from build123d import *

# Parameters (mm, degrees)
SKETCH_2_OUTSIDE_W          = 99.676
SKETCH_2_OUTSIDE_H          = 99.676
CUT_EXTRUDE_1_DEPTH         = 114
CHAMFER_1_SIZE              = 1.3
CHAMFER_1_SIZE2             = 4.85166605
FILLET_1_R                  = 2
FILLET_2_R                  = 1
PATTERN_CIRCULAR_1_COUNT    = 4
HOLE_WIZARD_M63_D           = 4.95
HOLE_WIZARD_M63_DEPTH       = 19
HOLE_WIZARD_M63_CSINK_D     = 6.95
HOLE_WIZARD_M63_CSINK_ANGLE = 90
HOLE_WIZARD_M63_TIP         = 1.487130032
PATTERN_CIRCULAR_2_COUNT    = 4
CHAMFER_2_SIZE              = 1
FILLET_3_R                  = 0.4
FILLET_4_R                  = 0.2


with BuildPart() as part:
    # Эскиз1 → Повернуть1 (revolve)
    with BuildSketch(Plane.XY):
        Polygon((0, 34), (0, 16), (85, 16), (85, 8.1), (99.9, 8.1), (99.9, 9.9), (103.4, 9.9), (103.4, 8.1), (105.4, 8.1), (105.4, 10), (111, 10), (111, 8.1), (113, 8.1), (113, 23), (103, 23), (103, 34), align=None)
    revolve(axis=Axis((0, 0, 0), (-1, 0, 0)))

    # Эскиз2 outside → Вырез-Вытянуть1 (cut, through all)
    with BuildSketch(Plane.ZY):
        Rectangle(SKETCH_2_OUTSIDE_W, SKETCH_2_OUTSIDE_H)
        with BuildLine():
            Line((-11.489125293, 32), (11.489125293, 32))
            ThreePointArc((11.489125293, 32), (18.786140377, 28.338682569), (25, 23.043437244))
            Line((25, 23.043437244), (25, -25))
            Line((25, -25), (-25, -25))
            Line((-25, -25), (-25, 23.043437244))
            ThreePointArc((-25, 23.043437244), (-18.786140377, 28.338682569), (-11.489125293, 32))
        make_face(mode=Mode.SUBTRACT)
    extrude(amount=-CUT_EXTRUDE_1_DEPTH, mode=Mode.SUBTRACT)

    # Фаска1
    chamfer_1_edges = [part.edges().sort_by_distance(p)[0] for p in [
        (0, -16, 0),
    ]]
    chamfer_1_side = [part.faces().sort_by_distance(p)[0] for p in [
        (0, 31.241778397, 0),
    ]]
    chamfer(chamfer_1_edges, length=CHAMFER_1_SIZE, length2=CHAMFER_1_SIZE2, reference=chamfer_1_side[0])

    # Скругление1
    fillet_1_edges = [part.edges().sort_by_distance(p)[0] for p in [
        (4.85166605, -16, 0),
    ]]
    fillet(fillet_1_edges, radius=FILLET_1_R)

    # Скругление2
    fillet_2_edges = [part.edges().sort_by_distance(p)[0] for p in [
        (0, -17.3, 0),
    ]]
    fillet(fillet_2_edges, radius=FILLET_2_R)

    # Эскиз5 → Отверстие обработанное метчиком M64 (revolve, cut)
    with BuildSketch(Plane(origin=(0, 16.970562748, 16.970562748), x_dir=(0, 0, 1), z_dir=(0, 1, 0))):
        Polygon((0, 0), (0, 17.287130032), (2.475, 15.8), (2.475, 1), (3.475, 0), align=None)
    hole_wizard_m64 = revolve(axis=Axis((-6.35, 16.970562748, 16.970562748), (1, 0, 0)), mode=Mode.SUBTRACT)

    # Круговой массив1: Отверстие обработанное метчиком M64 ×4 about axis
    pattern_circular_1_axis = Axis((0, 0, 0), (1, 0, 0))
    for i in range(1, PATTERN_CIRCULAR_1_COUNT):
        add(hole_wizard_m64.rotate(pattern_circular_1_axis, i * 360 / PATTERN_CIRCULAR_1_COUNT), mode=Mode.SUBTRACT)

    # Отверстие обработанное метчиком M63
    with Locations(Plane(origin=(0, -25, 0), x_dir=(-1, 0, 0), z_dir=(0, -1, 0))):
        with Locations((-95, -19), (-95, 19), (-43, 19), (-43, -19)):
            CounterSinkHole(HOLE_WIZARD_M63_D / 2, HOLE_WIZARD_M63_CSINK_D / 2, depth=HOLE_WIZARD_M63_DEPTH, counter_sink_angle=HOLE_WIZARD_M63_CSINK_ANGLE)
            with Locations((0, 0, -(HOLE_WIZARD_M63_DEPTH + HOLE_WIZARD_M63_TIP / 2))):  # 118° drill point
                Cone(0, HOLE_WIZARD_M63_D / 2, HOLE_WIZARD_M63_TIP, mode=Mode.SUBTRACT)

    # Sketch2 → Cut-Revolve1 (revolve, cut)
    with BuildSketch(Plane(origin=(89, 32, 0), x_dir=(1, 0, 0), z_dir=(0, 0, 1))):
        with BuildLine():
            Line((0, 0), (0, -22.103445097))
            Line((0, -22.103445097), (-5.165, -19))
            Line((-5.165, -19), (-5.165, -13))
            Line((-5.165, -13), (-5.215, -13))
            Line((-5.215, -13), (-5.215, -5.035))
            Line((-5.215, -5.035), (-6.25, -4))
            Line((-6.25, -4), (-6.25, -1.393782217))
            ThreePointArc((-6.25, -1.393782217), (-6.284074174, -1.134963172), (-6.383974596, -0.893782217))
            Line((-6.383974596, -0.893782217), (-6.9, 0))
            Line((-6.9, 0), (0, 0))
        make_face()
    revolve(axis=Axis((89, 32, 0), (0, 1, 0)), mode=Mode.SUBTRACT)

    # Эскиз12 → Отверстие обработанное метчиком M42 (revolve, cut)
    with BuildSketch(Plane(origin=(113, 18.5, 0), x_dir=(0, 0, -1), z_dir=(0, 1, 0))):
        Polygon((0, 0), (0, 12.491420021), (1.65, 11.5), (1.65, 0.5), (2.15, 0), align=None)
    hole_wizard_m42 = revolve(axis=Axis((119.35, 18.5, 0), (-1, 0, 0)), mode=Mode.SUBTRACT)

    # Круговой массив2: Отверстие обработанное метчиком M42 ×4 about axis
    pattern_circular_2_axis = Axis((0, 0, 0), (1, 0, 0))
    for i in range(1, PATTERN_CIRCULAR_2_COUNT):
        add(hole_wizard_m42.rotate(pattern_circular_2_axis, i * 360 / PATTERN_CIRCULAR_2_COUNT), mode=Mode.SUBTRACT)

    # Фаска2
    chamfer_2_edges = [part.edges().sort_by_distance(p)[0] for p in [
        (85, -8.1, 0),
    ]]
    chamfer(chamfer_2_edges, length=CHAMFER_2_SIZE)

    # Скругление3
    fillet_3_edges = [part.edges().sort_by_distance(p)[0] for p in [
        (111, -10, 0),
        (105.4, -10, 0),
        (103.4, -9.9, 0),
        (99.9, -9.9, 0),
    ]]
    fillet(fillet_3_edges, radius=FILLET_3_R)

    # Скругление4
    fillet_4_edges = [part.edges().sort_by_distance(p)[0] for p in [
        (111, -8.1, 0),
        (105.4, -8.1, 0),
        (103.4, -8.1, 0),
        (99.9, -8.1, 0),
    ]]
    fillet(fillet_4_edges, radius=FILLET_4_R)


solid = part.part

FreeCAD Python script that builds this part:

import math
import FreeCAD as App
import Part
import Sketcher
from FreeCAD import Vector
Q = App.Units.Quantity


def edges_at(feature, points):
    """Names of the edges that pass closest to the given points."""
    edges = feature.Shape.Edges
    near = lambda p: min(range(len(edges)), key=lambda i: edges[i].distToShape(Part.Vertex(*p))[0])
    return sorted({f"Edge{near(p) + 1}" for p in points})


def add_polygon(sketch, points):
    """Adds a closed chain of lines whose ends are joined by coincident constraints."""
    first, n = sketch.GeometryCount, len(points)
    for a, b in zip(points, points[1:] + points[:1]):
        sketch.addGeometry(Part.LineSegment(App.Vector(*a, 0), App.Vector(*b, 0)), False)
    for i in range(n):
        sketch.addConstraint(Sketcher.Constraint("Coincident", first + i, 2, first + (i + 1) % n, 1))

doc = App.newDocument("Part")
body = doc.addObject("PartDesign::Body", "Body")

# Sketch on XY plane
sketch1 = body.newObject("Sketcher::SketchObject", "Sketch")
sketch1.AttachmentSupport = (doc.getObject("XY_Plane"), [""])
sketch1.MapMode = "FlatFace"
add_polygon(sketch1, [(0, 34), (0, 16), (85, 16), (85, 8.1), (99.9, 8.1), (99.9, 9.9), (103.4, 9.9), (103.4, 8.1), (105.4, 8.1), (105.4, 10), (111, 10), (111, 8.1), (113, 8.1), (113, 23), (103, 23), (103, 34)])  # lines 0-15
sketch1.addConstraint([
    Sketcher.Constraint("Vertical", 0),
    Sketcher.Constraint("Horizontal", 1),
    Sketcher.Constraint("Vertical", 2),
    Sketcher.Constraint("Horizontal", 3),
    Sketcher.Constraint("Vertical", 4),
    Sketcher.Constraint("Horizontal", 5),
    Sketcher.Constraint("Vertical", 6),
    Sketcher.Constraint("Horizontal", 7),
    Sketcher.Constraint("Vertical", 8),
    Sketcher.Constraint("Horizontal", 9),
    Sketcher.Constraint("Vertical", 10),
    Sketcher.Constraint("Horizontal", 11),
    Sketcher.Constraint("Vertical", 12),
    Sketcher.Constraint("Horizontal", 13),
    Sketcher.Constraint("Vertical", 14),
    Sketcher.Constraint("Horizontal", 15),
    Sketcher.Constraint("PointOnObject", 0, 2, -2),
    Sketcher.Constraint("Horizontal", 3, 2, 6, 2),
    Sketcher.Constraint("Horizontal", 7, 2, 10, 2),
    Sketcher.Constraint("Equal", 7, 11),
    Sketcher.Constraint("Equal", 3, 12),
    Sketcher.Constraint("DistanceX", 1, 1, 1, 2, Q("85 mm")),
    Sketcher.Constraint("DistanceX", 7, 1, 7, 2, Q("2 mm")),
    Sketcher.Constraint("DistanceX", 13, 2, 13, 1, Q("10 mm")),
    Sketcher.Constraint("DistanceX", 15, 2, 15, 1, Q("103 mm")),
    Sketcher.Constraint("DistanceY", 0, 2, 0, 1, Q("18 mm")),
    Sketcher.Constraint("DistanceY", 14, 1, 14, 2, Q("11 mm")),
    Sketcher.Constraint("DistanceX", 3, 1, 3, 2, Q("14.9 mm")),
    Sketcher.Constraint("DistanceX", 5, 1, 5, 2, Q("3.5 mm")),
    Sketcher.Constraint("DistanceY", 4, 1, 4, 2, Q("1.8 mm")),
    Sketcher.Constraint("DistanceY", 8, 1, 8, 2, Q("1.9 mm")),
    Sketcher.Constraint("DistanceY", -1, 1, 0, 2, Q("16 mm")),
])
revolution = body.newObject("PartDesign::Revolution", "Revolution")
revolution.Profile = sketch1
revolution.ReferenceAxis = (sketch1, ["H_Axis"])
revolution.Angle = 360

# Sketch on YZ plane
sketch2 = body.newObject("Sketcher::SketchObject", "Sketch001")
sketch2.AttachmentSupport = (doc.getObject("YZ_Plane"), [""])
sketch2.MapMode = "FlatFace"
add_polygon(sketch2, [(50, -50), (-50, -50), (-50, 50), (50, 50)])  # lines 0-3
sketch2.addGeometry(Part.ArcOfCircle(Part.Circle(Vector(0, 0, 0), Vector(0, 0, 1), 34), math.radians(-47), math.radians(-20)), False)  # 4
sketch2.addGeometry(Part.LineSegment(Vector(32, -11, 0), Vector(32, 11, 0)), False)  # 5
sketch2.addGeometry(Part.ArcOfCircle(Part.Circle(Vector(0, 0, 0), Vector(0, 0, 1), 34), math.radians(20), math.radians(47)), False)  # 6
sketch2.addGeometry(Part.LineSegment(Vector(23, 25, 0), Vector(-25, 25, 0)), False)  # 7
sketch2.addGeometry(Part.LineSegment(Vector(-25, 25, 0), Vector(-25, -25, 0)), False)  # 8
sketch2.addGeometry(Part.LineSegment(Vector(-25, -25, 0), Vector(23, -25, 0)), False)  # 9
sketch2.addConstraint([
    Sketcher.Constraint("Coincident", 4, 2, 5, 1),
    Sketcher.Constraint("Coincident", 5, 2, 6, 1),
    Sketcher.Constraint("Coincident", 6, 2, 7, 1),
    Sketcher.Constraint("Coincident", 7, 2, 8, 1),
    Sketcher.Constraint("Coincident", 8, 2, 9, 1),
    Sketcher.Constraint("Coincident", 9, 2, 4, 1),
    Sketcher.Constraint("Horizontal", 0),
    Sketcher.Constraint("Vertical", 1),
    Sketcher.Constraint("Horizontal", 2),
    Sketcher.Constraint("Vertical", 3),
    Sketcher.Constraint("Vertical", 5),
    Sketcher.Constraint("Horizontal", 7),
    Sketcher.Constraint("Vertical", 8),
    Sketcher.Constraint("Horizontal", 9),
    Sketcher.Constraint("Coincident", 4, 3, -1, 1),
    Sketcher.Constraint("Coincident", 6, 3, -1, 1),
    Sketcher.Constraint("Equal", 4, 6),
    Sketcher.Constraint("Symmetric", 0, 2, 2, 2, -1, 1),
    Sketcher.Constraint("Vertical", 6, 2, 9, 2),
    Sketcher.Constraint("Equal", 2, 1),
    Sketcher.Constraint("Radius", 4, Q("34 mm")),
    Sketcher.Constraint("DistanceY", 8, 2, 8, 1, Q("50 mm")),
    Sketcher.Constraint("DistanceX", -1, 1, 4, 2, Q("32 mm")),
    Sketcher.Constraint("DistanceX", 7, 2, -1, 1, Q("25 mm")),
    Sketcher.Constraint("DistanceX", 0, 2, 0, 1, Q("99.676 mm")),
])
pocket1 = body.newObject("PartDesign::Pocket", "Pocket")
pocket1.Profile = sketch2
pocket1.Type = "ThroughAll"
pocket1.Reversed = True
doc.recompute()

chamfer = body.newObject("PartDesign::Chamfer", "Chamfer")
chamfer.Base = (pocket1, edges_at(pocket1, [(0, -16, 0)]))
chamfer.ChamferType = "Two distances"
chamfer.Size = 1.3
chamfer.Size2 = 4.851666
doc.recompute()

fillet = body.newObject("PartDesign::Fillet", "Fillet")
fillet.Base = (chamfer, edges_at(chamfer, [(4.852, -16, 0)]))
fillet.Radius = 2
doc.recompute()

fillet2 = body.newObject("PartDesign::Fillet", "Fillet001")
fillet2.Base = (fillet, edges_at(fillet, [(0, -17.3, 0)]))
fillet2.Radius = 1

# Sketch on XZ plane
sketch3 = body.newObject("Sketcher::SketchObject", "Sketch002")
sketch3.AttachmentSupport = (doc.getObject("XZ_Plane"), [""])
sketch3.MapMode = "FlatFace"
sketch3.AttachmentOffset = App.Placement(Vector(0, 0, -16.970563), App.Rotation())
add_polygon(sketch3, [(17.3, 17), (0, 17), (0, 20.4), (1, 19.4), (15.8, 19.4)])  # lines 0-4
sketch3.addGeometry(Part.LineSegment(Vector(0, 17, 0), Vector(17.3, 17, 0)), True)  # axis
sketch3.addConstraint([
    Sketcher.Constraint("Horizontal", 0),
    Sketcher.Constraint("Vertical", 1),
    Sketcher.Constraint("Horizontal", 3),
    Sketcher.Constraint("Horizontal", 5),
    Sketcher.Constraint("Coincident", 5, 1, 0, 2),
    Sketcher.Constraint("PointOnObject", 0, 2, -2),
    Sketcher.Constraint("Equal", 0, 5),
    Sketcher.Constraint("Angle", 2, Q("-45 deg")),
    Sketcher.Constraint("Angle", 4, Q("-59 deg")),
    Sketcher.Constraint("DistanceX", 3, 1, 3, 2, Q("14.8 mm")),
    Sketcher.Constraint("DistanceX", -1, 1, 2, 2, Q("1 mm")),
    Sketcher.Constraint("DistanceY", 1, 1, 1, 2, Q("3.475 mm")),
    Sketcher.Constraint("DistanceY", -1, 1, 0, 2, Q("16.970563 mm")),
])
groove = body.newObject("PartDesign::Groove", "Groove")
groove.Profile = sketch3
groove.ReferenceAxis = (sketch3, ["Axis0"])
groove.Angle = 360
doc.recompute()

polarpattern = body.newObject("PartDesign::PolarPattern", "PolarPattern")
polarpattern.Originals = [groove]
polarpattern.Axis = (doc.getObject("X_Axis"), [""])
polarpattern.Angle = 360
polarpattern.Occurrences = 4
body.Tip = polarpattern

# Sketch on XZ plane
sketch4 = body.newObject("Sketcher::SketchObject", "Sketch003")
sketch4.AttachmentSupport = (doc.getObject("XZ_Plane"), [""])
sketch4.MapMode = "FlatFace"
sketch4.AttachmentOffset = App.Placement(Vector(0, 0, 25), App.Rotation())
sketch4.addGeometry([
    Part.Circle(Vector(95, 19, 0), Vector(0, 0, 1), 2.5),
    Part.Circle(Vector(95, -19, 0), Vector(0, 0, 1), 2.5),
    Part.Circle(Vector(43, -19, 0), Vector(0, 0, 1), 2.5),
    Part.Circle(Vector(43, 19, 0), Vector(0, 0, 1), 2.5),
], False)
sketch4.addConstraint([
    Sketcher.Constraint("Equal", 0, 1),
    Sketcher.Constraint("Equal", 1, 2),
    Sketcher.Constraint("Equal", 2, 3),
    Sketcher.Constraint("Symmetric", 0, 3, 1, 3, -1),
    Sketcher.Constraint("Symmetric", 2, 3, 3, 3, -1),
    Sketcher.Constraint("Horizontal", 1, 3, 2, 3),
    Sketcher.Constraint("Diameter", 0, Q("4.95 mm")),
    Sketcher.Constraint("DistanceX", -1, 1, 0, 3, Q("95 mm")),
    Sketcher.Constraint("DistanceY", -1, 1, 0, 3, Q("19 mm")),
    Sketcher.Constraint("DistanceX", -1, 1, 2, 3, Q("43 mm")),
])
doc.recompute()
hole = body.newObject("PartDesign::Hole", "Hole")
hole.Profile = sketch4
hole.ThreadType = "None"
hole.Diameter = 4.95
hole.DepthType = "Dimension"
hole.Depth = 19
hole.DrillPoint = "Angled"
hole.DrillPointAngle = 118
hole.HoleCutType = "Countersink"
hole.HoleCutDiameter = 6.95
hole.HoleCutCountersinkAngle = 90

# Sketch on XY plane
sketch5 = body.newObject("Sketcher::SketchObject", "Sketch004")
sketch5.AttachmentSupport = (doc.getObject("XY_Plane"), [""])
sketch5.MapMode = "FlatFace"
sketch5.addGeometry([
    Part.LineSegment(Vector(89, 9.897, 0), Vector(89, 32, 0)),  # 0
    Part.LineSegment(Vector(89, 32, 0), Vector(82.1, 32, 0)),  # 1
    Part.LineSegment(Vector(82.1, 32, 0), Vector(82.616, 31.106, 0)),  # 2
    Part.ArcOfCircle(Part.Circle(Vector(81.75, 30.606, 0), Vector(0, 0, 1), 1), math.radians(0), math.radians(30)),  # 3
    Part.LineSegment(Vector(82.75, 30.606, 0), Vector(82.75, 28, 0)),  # 4
    Part.LineSegment(Vector(82.75, 28, 0), Vector(83.785, 26.965, 0)),  # 5
    Part.LineSegment(Vector(83.785, 26.965, 0), Vector(83.785, 19, 0)),  # 6
    Part.LineSegment(Vector(83.785, 19, 0), Vector(83.835, 19, 0)),  # 7
    Part.LineSegment(Vector(83.835, 19, 0), Vector(83.835, 13, 0)),  # 8
    Part.LineSegment(Vector(83.835, 13, 0), Vector(89, 9.897, 0)),  # 9
], False)
sketch5.addGeometry(Part.LineSegment(Vector(89, 9.897, 0), Vector(89, 32, 0)), True)  # axis
sketch5.addConstraint([
    Sketcher.Constraint("Coincident", 0, 2, 1, 1),
    Sketcher.Constraint("Coincident", 1, 2, 2, 1),
    Sketcher.Constraint("Tangent", 2, 2, 3, 2),
    Sketcher.Constraint("Tangent", 3, 1, 4, 1),
    Sketcher.Constraint("Coincident", 4, 2, 5, 1),
    Sketcher.Constraint("Coincident", 5, 2, 6, 1),
    Sketcher.Constraint("Coincident", 6, 2, 7, 1),
    Sketcher.Constraint("Coincident", 7, 2, 8, 1),
    Sketcher.Constraint("Coincident", 8, 2, 9, 1),
    Sketcher.Constraint("Coincident", 9, 2, 0, 1),
    Sketcher.Constraint("Vertical", 0),
    Sketcher.Constraint("Horizontal", 1),
    Sketcher.Constraint("Vertical", 4),
    Sketcher.Constraint("Vertical", 6),
    Sketcher.Constraint("Horizontal", 7),
    Sketcher.Constraint("Vertical", 8),
    Sketcher.Constraint("Vertical", 10),
    Sketcher.Constraint("Coincident", 10, 1, 9, 2),
    Sketcher.Constraint("Horizontal", 1, 2, 10, 2),
    Sketcher.Constraint("Radius", 3, Q("1 mm")),
    Sketcher.Constraint("DistanceY", 8, 2, 8, 1, Q("6 mm")),
    Sketcher.Constraint("Angle", 2, Q("-60 deg")),
    Sketcher.Constraint("Angle", 5, Q("-45 deg")),
    Sketcher.Constraint("Angle", 9, Q("-31 deg")),
    Sketcher.Constraint("DistanceX", 1, 2, 1, 1, Q("6.9 mm")),
    Sketcher.Constraint("DistanceX", -1, 1, 0, 2, Q("89 mm")),
    Sketcher.Constraint("DistanceY", -1, 1, 0, 2, Q("32 mm")),
    Sketcher.Constraint("DistanceY", -1, 1, 4, 2, Q("28 mm")),
    Sketcher.Constraint("DistanceY", -1, 1, 6, 2, Q("19 mm")),
    Sketcher.Constraint("DistanceX", 7, 1, 7, 2, Q("0.05 mm")),
    Sketcher.Constraint("DistanceY", 6, 2, 6, 1, Q("7.965 mm")),
    Sketcher.Constraint("DistanceX", -1, 1, 3, 3, Q("81.75 mm")),
])
groove2 = body.newObject("PartDesign::Groove", "Groove001")
groove2.Profile = sketch5
groove2.ReferenceAxis = (sketch5, ["Axis0"])
groove2.Angle = 360

# Sketch on XZ plane
sketch6 = body.newObject("Sketcher::SketchObject", "Sketch005")
sketch6.AttachmentSupport = (doc.getObject("XZ_Plane"), [""])
sketch6.MapMode = "FlatFace"
sketch6.AttachmentOffset = App.Placement(Vector(0, 0, -18.5), App.Rotation())
add_polygon(sketch6, [(100.5, 0), (113, 0), (113, -2.1), (112.5, -1.6), (101.5, -1.6)])  # lines 0-4
sketch6.addConstraint([
    Sketcher.Constraint("Horizontal", 0),
    Sketcher.Constraint("Vertical", 1),
    Sketcher.Constraint("Horizontal", 3),
    Sketcher.Constraint("PointOnObject", 0, 2, -1),
    Sketcher.Constraint("DistanceX", 3, 2, 3, 1, Q("11 mm")),
    Sketcher.Constraint("Angle", 2, Q("135 deg")),
    Sketcher.Constraint("Angle", 4, Q("121 deg")),
    Sketcher.Constraint("DistanceX", -1, 1, 0, 2, Q("113 mm")),
    Sketcher.Constraint("DistanceY", 1, 2, 1, 1, Q("2.15 mm")),
    Sketcher.Constraint("DistanceX", -1, 1, 2, 2, Q("112.5 mm")),
])
groove3 = body.newObject("PartDesign::Groove", "Groove002")
groove3.Profile = sketch6
groove3.ReferenceAxis = (sketch6, ["H_Axis"])
groove3.Angle = 360
doc.recompute()

polarpattern2 = body.newObject("PartDesign::PolarPattern", "PolarPattern001")
polarpattern2.Originals = [groove3]
polarpattern2.Axis = (doc.getObject("X_Axis"), [""])
polarpattern2.Angle = 360
polarpattern2.Occurrences = 4
body.Tip = polarpattern2
doc.recompute()

chamfer2 = body.newObject("PartDesign::Chamfer", "Chamfer001")
chamfer2.Base = (polarpattern2, edges_at(polarpattern2, [(85, -8.1, 0)]))
chamfer2.Size = 1
doc.recompute()

fillet3 = body.newObject("PartDesign::Fillet", "Fillet002")
fillet3.Base = (chamfer2, edges_at(chamfer2, [
    (111, -10, 0),
    (105.4, -10, 0),
    (103.4, -9.9, 0),
    (99.9, -9.9, 0),
]))
fillet3.Radius = 0.4
doc.recompute()

fillet4 = body.newObject("PartDesign::Fillet", "Fillet003")
fillet4.Base = (fillet3, edges_at(fillet3, [
    (111, -8.1, 0),
    (105.4, -8.1, 0),
    (103.4, -8.1, 0),
    (99.9, -8.1, 0),
]))
fillet4.Radius = 0.2

doc.recompute()
